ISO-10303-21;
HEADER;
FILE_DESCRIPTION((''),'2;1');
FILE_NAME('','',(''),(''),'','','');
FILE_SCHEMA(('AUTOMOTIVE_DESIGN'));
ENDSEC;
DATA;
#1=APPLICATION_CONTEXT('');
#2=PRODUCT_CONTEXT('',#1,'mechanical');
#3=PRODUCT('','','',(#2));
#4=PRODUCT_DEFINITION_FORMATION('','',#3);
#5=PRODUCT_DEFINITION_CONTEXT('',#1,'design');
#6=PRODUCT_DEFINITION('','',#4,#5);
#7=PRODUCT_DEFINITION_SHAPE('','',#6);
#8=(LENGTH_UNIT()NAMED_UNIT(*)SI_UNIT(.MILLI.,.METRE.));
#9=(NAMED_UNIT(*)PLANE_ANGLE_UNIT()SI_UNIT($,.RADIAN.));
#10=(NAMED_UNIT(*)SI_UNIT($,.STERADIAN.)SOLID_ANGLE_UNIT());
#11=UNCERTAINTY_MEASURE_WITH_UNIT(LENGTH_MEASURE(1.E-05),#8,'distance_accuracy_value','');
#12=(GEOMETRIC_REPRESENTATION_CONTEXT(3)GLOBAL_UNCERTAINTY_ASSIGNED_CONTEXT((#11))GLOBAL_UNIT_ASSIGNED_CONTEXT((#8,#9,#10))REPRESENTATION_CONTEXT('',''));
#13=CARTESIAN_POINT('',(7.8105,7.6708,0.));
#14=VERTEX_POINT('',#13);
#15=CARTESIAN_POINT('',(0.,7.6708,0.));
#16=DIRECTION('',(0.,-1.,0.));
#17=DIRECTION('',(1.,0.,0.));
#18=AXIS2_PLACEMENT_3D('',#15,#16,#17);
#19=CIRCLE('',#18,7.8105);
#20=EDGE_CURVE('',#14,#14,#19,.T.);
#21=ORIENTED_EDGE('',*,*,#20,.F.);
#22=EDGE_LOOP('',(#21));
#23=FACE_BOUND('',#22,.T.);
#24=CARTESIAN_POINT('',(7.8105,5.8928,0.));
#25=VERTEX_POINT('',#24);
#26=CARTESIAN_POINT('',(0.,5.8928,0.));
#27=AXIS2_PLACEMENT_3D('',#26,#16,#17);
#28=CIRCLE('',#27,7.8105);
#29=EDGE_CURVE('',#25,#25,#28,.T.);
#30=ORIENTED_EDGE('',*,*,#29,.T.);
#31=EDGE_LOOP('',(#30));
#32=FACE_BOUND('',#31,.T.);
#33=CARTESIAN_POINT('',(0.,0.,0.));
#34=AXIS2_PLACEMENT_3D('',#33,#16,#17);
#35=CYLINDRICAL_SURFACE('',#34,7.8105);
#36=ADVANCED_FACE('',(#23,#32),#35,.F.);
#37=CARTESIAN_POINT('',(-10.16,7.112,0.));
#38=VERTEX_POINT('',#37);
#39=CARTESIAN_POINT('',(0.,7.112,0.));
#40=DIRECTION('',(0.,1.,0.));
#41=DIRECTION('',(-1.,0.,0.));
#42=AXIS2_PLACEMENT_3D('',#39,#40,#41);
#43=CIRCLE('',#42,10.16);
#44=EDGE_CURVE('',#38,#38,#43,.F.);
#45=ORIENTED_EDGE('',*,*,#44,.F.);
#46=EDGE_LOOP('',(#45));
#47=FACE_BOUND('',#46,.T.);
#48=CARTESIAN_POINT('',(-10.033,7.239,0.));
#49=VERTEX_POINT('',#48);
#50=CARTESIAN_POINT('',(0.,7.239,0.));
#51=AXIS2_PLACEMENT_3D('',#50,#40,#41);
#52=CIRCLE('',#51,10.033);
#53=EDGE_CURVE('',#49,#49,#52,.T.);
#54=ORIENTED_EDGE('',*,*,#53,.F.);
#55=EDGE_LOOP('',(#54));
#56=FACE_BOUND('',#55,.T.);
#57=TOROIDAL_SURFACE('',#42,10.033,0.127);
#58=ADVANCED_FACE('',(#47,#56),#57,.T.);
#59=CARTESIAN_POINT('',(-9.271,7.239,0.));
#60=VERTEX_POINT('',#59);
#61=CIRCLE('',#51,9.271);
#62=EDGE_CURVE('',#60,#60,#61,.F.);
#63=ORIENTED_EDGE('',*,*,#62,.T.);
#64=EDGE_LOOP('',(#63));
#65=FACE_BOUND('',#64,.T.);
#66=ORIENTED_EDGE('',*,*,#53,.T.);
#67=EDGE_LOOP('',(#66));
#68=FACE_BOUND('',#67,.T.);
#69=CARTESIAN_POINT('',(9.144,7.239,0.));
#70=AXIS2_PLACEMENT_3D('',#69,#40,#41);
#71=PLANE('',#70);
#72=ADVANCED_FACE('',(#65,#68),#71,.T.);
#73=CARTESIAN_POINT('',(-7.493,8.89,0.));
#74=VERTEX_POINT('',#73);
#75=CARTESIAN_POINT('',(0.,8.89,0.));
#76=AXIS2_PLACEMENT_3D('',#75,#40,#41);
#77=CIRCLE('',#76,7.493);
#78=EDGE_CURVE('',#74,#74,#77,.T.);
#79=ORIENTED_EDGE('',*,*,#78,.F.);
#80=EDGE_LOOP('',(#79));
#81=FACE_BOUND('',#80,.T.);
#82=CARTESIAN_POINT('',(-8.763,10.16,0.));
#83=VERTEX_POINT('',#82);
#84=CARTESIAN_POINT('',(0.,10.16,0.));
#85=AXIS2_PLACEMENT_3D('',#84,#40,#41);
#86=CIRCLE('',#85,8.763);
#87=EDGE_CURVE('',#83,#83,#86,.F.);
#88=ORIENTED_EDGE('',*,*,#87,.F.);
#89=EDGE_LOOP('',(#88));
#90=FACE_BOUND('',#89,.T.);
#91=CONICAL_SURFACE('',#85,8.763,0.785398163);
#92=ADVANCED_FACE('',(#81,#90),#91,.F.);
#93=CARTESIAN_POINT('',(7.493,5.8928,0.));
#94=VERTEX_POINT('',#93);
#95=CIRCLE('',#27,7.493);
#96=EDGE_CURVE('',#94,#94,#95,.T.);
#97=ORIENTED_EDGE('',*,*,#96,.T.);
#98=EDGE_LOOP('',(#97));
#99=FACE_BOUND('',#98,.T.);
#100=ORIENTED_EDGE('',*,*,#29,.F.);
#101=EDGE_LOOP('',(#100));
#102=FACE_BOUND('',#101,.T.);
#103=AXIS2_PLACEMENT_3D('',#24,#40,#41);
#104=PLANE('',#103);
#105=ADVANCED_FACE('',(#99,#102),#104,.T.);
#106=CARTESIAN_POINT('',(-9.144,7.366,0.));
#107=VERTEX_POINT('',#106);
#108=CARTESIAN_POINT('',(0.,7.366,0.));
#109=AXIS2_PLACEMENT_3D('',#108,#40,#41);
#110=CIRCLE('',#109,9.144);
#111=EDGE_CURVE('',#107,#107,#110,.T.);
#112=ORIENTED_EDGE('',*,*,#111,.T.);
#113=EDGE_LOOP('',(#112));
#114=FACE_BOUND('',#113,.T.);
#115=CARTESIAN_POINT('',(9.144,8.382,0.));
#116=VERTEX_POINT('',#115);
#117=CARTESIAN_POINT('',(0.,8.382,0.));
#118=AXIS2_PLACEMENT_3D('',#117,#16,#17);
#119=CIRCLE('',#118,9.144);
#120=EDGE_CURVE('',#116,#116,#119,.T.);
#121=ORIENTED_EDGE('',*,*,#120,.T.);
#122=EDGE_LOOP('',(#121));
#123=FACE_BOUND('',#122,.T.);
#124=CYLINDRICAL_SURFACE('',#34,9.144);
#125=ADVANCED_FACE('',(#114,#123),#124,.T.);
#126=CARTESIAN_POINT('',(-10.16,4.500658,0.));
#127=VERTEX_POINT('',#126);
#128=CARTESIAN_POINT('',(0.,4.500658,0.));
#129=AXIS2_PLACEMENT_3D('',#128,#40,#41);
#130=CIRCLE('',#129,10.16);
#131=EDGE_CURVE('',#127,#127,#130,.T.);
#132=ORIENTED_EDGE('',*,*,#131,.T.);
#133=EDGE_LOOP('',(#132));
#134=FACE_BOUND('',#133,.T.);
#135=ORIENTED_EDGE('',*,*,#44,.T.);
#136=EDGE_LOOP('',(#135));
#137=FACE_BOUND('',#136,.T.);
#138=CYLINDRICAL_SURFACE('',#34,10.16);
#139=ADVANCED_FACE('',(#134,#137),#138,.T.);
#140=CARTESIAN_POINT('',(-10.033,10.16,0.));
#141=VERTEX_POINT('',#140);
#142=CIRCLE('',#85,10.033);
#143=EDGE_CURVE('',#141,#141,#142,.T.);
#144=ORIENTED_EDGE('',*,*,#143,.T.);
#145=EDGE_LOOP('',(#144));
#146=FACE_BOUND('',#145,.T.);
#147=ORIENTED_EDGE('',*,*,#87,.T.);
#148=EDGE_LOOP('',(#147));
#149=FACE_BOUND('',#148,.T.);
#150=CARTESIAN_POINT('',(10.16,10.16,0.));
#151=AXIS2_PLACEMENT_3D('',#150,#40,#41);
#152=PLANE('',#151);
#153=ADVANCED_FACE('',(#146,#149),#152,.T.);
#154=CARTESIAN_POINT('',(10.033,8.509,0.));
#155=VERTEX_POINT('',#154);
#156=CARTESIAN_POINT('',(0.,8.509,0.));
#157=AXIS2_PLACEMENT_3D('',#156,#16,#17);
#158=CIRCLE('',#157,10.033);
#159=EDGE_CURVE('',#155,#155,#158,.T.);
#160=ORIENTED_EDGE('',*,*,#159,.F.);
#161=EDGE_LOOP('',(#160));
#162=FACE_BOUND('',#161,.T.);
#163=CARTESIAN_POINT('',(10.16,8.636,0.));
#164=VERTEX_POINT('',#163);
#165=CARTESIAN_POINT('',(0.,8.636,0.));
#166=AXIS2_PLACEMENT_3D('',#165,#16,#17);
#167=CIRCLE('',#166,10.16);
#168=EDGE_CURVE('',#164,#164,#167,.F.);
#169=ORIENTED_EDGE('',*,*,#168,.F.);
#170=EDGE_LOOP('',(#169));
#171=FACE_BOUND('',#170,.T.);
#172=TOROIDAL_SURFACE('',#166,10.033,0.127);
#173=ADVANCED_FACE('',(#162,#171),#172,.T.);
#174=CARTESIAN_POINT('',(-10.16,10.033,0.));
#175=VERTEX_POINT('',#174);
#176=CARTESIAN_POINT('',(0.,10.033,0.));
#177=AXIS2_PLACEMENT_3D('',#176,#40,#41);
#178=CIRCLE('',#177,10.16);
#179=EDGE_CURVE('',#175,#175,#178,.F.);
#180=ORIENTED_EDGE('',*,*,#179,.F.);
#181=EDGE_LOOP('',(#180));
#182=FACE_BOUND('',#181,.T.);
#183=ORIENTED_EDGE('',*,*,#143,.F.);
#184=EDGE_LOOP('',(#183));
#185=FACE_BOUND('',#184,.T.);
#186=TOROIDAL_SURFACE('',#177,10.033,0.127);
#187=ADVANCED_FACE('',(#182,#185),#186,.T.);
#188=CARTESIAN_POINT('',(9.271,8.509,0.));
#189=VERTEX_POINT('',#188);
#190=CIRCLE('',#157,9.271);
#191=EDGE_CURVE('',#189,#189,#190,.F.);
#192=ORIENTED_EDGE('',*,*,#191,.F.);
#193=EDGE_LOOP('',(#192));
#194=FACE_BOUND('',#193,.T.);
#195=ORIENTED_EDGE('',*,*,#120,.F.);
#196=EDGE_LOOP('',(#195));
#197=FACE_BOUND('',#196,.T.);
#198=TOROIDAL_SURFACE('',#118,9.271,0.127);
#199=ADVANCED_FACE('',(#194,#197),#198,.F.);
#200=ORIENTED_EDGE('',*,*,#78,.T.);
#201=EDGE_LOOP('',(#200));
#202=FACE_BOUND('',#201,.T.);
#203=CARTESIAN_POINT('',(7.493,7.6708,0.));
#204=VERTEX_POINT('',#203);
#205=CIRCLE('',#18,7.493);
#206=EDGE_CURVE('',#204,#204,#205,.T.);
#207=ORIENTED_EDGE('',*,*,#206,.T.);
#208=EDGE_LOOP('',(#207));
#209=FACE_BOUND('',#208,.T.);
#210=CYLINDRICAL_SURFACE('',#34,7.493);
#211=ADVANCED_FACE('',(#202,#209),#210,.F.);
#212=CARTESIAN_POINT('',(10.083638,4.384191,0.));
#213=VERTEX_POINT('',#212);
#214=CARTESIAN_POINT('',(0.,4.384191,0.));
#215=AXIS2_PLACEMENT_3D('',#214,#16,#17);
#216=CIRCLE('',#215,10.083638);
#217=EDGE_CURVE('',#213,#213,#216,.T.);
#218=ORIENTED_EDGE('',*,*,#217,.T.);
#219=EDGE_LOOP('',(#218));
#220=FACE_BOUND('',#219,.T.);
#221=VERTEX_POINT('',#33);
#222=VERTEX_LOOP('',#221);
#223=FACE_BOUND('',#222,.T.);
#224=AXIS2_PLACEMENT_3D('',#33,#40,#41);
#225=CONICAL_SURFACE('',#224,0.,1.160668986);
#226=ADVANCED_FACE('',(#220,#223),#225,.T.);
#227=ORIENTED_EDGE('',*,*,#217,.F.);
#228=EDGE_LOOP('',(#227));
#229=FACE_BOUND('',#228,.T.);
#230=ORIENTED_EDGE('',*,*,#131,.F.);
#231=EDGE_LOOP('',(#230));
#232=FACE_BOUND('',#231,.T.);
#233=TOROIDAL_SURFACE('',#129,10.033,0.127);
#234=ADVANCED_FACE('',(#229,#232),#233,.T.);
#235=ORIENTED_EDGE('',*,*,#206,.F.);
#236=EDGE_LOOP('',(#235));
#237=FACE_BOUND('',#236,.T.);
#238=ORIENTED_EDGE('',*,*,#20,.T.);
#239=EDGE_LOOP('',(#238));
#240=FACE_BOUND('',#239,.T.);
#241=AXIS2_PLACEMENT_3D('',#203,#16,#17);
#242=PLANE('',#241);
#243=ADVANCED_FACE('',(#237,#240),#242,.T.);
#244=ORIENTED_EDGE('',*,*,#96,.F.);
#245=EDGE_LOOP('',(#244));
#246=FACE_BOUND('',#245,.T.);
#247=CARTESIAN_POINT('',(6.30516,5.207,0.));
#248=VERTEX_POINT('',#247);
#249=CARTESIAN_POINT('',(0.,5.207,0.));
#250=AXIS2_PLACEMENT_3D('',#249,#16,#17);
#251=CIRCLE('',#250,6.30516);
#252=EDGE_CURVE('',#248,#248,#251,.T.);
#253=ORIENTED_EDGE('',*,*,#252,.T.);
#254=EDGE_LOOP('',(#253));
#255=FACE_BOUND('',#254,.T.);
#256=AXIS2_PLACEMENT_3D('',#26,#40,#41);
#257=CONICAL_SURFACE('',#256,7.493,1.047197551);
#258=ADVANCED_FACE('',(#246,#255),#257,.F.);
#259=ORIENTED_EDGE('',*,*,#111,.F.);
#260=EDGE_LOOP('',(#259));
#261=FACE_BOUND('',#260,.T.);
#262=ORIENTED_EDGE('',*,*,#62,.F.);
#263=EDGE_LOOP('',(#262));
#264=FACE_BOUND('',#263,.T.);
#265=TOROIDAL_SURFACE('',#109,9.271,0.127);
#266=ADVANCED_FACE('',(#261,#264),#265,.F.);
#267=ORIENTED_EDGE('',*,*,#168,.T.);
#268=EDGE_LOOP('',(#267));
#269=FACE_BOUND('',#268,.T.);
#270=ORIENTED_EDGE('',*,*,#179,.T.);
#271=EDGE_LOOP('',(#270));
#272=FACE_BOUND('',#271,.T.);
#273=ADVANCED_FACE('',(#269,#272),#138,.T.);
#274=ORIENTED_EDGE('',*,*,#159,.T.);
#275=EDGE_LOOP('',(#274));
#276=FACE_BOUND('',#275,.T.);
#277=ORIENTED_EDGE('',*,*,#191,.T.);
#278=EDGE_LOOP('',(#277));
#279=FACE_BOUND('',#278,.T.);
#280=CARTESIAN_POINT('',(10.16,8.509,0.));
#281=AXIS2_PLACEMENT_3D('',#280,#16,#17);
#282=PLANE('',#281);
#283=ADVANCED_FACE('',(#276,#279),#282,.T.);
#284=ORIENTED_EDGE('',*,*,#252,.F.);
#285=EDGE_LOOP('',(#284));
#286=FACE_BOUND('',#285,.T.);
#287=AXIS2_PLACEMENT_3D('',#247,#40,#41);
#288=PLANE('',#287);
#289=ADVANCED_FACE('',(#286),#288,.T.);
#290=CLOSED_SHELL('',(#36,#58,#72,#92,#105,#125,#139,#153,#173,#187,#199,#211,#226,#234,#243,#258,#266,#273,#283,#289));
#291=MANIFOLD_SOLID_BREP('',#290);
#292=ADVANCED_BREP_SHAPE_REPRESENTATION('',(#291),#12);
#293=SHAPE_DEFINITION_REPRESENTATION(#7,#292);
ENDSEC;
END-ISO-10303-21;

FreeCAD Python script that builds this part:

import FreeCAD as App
import Part
import Sketcher
Q = App.Units.Quantity


def edges_at(feature, points):
    """Names of the edges that pass closest to the given points."""
    edges = feature.Shape.Edges
    near = lambda p: min(range(len(edges)), key=lambda i: edges[i].distToShape(Part.Vertex(*p))[0])
    return sorted({f"Edge{near(p) + 1}" for p in points})


def add_polygon(sketch, points):
    """Adds a closed chain of lines whose ends are joined by coincident constraints."""
    first, n = sketch.GeometryCount, len(points)
    for a, b in zip(points, points[1:] + points[:1]):
        sketch.addGeometry(Part.LineSegment(App.Vector(*a, 0), App.Vector(*b, 0)), False)
    for i in range(n):
        sketch.addConstraint(Sketcher.Constraint("Coincident", first + i, 2, first + (i + 1) % n, 1))

doc = App.newDocument("Part")
params = doc.addObject("Spreadsheet::Sheet", "Params")
for row, (alias, value) in enumerate([
    ("sketch1_width", "0.04 in"),
    ("sketch1_height", "0.05 in"),
    ("sketch1_height2", "0.07 in"),
    ("sketch1_width2", "0.105 in"),
    ("sketch1_height3", "0.065 in"),
    ("revolution_angle", "360 deg"),
    ("chamfer_size", "0.05 in"),
    ("fillet_radius", "0.005 in"),
], start=1):
    params.set(f"A{row}", alias)
    params.set(f"B{row}", "=" + value)
    params.setAlias(f"B{row}", alias)

body = doc.addObject("PartDesign::Body", "Body")

# Sketch on XY plane
sketch1 = body.newObject("Sketcher::SketchObject", "Sketch")
sketch1.AttachmentSupport = (doc.getObject("XY_Plane"), [""])
sketch1.MapMode = "FlatFace"
add_polygon(sketch1, [(0, 0), (10.16, 4.42), (10.16, 7.24), (9.14, 7.24), (9.14, 8.51), (10.16, 8.51), (10.16, 10.16), (7.49, 10.16), (7.49, 7.67), (7.81, 7.67), (7.81, 5.89), (7.49, 5.89), (6.31, 5.21), (0, 5.21)])  # lines 0-13
sketch1.addConstraint([
    Sketcher.Constraint("Vertical", 1),
    Sketcher.Constraint("Horizontal", 2),
    Sketcher.Constraint("Vertical", 3),
    Sketcher.Constraint("Horizontal", 4),
    Sketcher.Constraint("Vertical", 5),
    Sketcher.Constraint("Horizontal", 6),
    Sketcher.Constraint("Vertical", 7),
    Sketcher.Constraint("Horizontal", 8),
    Sketcher.Constraint("Vertical", 9),
    Sketcher.Constraint("Horizontal", 10),
    Sketcher.Constraint("Horizontal", 12),
    Sketcher.Constraint("Vertical", 13),
    Sketcher.Constraint("Coincident", 13, 2, -1, 1),
    Sketcher.Constraint("Vertical", 1, 2, 4, 2),
    Sketcher.Constraint("Vertical", 7, 2, 10, 2),
    Sketcher.Constraint("Angle", 11, Q("-150 deg")),
    Sketcher.Constraint("DistanceX", 2, 2, 2, 1, Q("0.04 in")),
    Sketcher.Constraint("DistanceY", 3, 1, 3, 2, Q("0.05 in")),
    Sketcher.Constraint("DistanceY", 9, 2, 9, 1, Q("0.07 in")),
    Sketcher.Constraint("DistanceX", -1, 1, 0, 2, Q("0.4 in")),
    Sketcher.Constraint("DistanceY", -1, 1, 5, 2, Q("0.4 in")),
    Sketcher.Constraint("DistanceX", 6, 2, 6, 1, Q("0.105 in")),
    Sketcher.Constraint("DistanceY", 5, 1, 5, 2, Q("0.065 in")),
    Sketcher.Constraint("DistanceY", 7, 2, 7, 1, Q("0.098 in")),
    Sketcher.Constraint("DistanceY", 13, 2, 13, 1, Q("0.205 in")),
    Sketcher.Constraint("DistanceX", 8, 1, 8, 2, Q("0.0125 in")),
    Sketcher.Constraint("DistanceY", 1, 1, 1, 2, 2.821609),
])
sketch1.setExpression("Constraints[30]", "Params.sketch1_width")
sketch1.setExpression("Constraints[31]", "Params.sketch1_height")
sketch1.setExpression("Constraints[32]", "Params.sketch1_height2")
sketch1.setExpression("Constraints[35]", "Params.sketch1_width2")
sketch1.setExpression("Constraints[36]", "Params.sketch1_height3")
revolution = body.newObject("PartDesign::Revolution", "Revolution")
revolution.Profile = sketch1
revolution.ReferenceAxis = (sketch1, ["V_Axis"])
revolution.setExpression("Angle", "Params.revolution_angle")
doc.recompute()

chamfer = body.newObject("PartDesign::Chamfer", "Chamfer")
chamfer.Base = (revolution, edges_at(revolution, [(-7.493, 10.16, 0)]))
chamfer.setExpression("Size", "Params.chamfer_size")
doc.recompute()

fillet = body.newObject("PartDesign::Fillet", "Fillet")
fillet.Base = (chamfer, edges_at(chamfer, [
    (-10.16, 10.16, 0),
    (-10.16, 8.509, 0),
    (-9.144, 8.509, 0),
    (-9.144, 7.239, 0),
    (-10.16, 7.239, 0),
    (-10.16, 4.417, 0),
]))
fillet.setExpression("Radius", "Params.fillet_radius")

doc.recompute()
